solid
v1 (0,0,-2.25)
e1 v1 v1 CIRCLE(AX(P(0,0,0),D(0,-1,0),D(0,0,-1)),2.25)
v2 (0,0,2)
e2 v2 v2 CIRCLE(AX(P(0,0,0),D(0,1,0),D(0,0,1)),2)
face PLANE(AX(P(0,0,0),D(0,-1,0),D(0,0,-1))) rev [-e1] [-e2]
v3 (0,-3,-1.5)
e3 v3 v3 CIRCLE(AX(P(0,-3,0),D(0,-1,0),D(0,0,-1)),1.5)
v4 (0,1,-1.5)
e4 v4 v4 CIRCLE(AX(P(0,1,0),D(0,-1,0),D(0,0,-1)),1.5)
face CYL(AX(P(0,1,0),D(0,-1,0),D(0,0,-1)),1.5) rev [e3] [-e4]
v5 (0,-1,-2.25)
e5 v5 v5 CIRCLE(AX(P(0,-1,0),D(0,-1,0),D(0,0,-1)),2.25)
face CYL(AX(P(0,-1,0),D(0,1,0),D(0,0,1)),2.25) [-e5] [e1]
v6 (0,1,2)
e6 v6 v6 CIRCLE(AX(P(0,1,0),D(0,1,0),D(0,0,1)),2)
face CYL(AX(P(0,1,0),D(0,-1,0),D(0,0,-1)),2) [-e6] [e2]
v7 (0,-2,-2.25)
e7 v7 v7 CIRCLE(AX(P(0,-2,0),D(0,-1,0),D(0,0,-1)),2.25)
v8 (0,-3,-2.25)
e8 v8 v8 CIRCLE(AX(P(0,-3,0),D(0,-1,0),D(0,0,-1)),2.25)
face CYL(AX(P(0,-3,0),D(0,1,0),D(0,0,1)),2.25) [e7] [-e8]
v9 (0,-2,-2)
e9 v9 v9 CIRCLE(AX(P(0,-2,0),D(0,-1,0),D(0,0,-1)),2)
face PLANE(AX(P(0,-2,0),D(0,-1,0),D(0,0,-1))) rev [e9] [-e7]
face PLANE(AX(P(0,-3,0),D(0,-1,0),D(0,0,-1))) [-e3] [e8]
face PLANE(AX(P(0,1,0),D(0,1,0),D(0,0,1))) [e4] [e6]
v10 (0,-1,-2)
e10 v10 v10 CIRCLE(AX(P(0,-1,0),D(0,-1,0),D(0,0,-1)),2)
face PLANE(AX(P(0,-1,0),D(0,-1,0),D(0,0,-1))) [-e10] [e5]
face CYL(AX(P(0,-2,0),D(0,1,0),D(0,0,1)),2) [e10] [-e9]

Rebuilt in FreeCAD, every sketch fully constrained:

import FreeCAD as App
import Part
import Sketcher

V = App.Vector
Q = App.Units.Quantity

doc = App.newDocument("Part")
body = doc.addObject("PartDesign::Body", "Body")

sketch1 = body.newObject("Sketcher::SketchObject", "Sketch")
sketch1.AttachmentSupport = (doc.getObject("XZ_Plane"), [""])
sketch1.MapMode = "FlatFace"
sketch1.addGeometry(Part.Circle(V(0, 0, 0), V(0, 0, 1), 2), False)
sketch1.addConstraint([
    Sketcher.Constraint("Coincident", 0, 3, -1, 1),
    Sketcher.Constraint("Diameter", 0, Q("4 mm")),
])
pad1 = body.newObject("PartDesign::Pad", "Pad")
pad1.Profile = sketch1
pad1.Length = 1
pad1.Reversed = True

sketch2 = body.newObject("Sketcher::SketchObject", "Sketch001")
sketch2.AttachmentSupport = (doc.getObject("XZ_Plane"), [""])
sketch2.MapMode = "FlatFace"
sketch2.addGeometry(Part.Circle(V(0, 0, 0), V(0, 0, 1), 2.2), False)
sketch2.addConstraint([
    Sketcher.Constraint("Coincident", 0, 3, -1, 1),
    Sketcher.Constraint("Diameter", 0, Q("4.5 mm")),
])
pad2 = body.newObject("PartDesign::Pad", "Pad001")
pad2.Profile = sketch2
pad2.Length = 1

sketch3 = body.newObject("Sketcher::SketchObject", "Sketch002")
sketch3.AttachmentSupport = (doc.getObject("XZ_Plane"), [""])
sketch3.MapMode = "FlatFace"
sketch3.AttachmentOffset = App.Placement(V(0, 0, 2), App.Rotation())
sketch3.addGeometry(Part.Circle(V(0, 0, 0), V(0, 0, 1), 2), False)
sketch3.addConstraint([
    Sketcher.Constraint("Coincident", 0, 3, -1, 1),
    Sketcher.Constraint("Diameter", 0, Q("4 mm")),
])
pad3 = body.newObject("PartDesign::Pad", "Pad002")
pad3.Profile = sketch3
pad3.Length = 1
pad3.Reversed = True

sketch4 = body.newObject("Sketcher::SketchObject", "Sketch003")
sketch4.AttachmentSupport = (doc.getObject("XZ_Plane"), [""])
sketch4.MapMode = "FlatFace"
sketch4.AttachmentOffset = App.Placement(V(0, 0, 2), App.Rotation())
sketch4.addGeometry(Part.Circle(V(0, 0, 0), V(0, 0, 1), 2.2), False)
sketch4.addConstraint([
    Sketcher.Constraint("Coincident", 0, 3, -1, 1),
    Sketcher.Constraint("Diameter", 0, Q("4.5 mm")),
])
pad4 = body.newObject("PartDesign::Pad", "Pad003")
pad4.Profile = sketch4
pad4.Length = 1

sketch5 = body.newObject("Sketcher::SketchObject", "Sketch004")
sketch5.AttachmentSupport = (doc.getObject("XZ_Plane"), [""])
sketch5.MapMode = "FlatFace"
sketch5.AttachmentOffset = App.Placement(V(0, 0, 3), App.Rotation())
sketch5.addGeometry(Part.Circle(V(0, 0, 0), V(0, 0, 1), 1.5), False)
sketch5.addConstraint([
    Sketcher.Constraint("Coincident", 0, 3, -1, 1),
    Sketcher.Constraint("Diameter", 0, Q("3 mm")),
])
pocket1 = body.newObject("PartDesign::Pocket", "Pocket")
pocket1.Profile = sketch5
pocket1.Type = "ThroughAll"

doc.recompute()
